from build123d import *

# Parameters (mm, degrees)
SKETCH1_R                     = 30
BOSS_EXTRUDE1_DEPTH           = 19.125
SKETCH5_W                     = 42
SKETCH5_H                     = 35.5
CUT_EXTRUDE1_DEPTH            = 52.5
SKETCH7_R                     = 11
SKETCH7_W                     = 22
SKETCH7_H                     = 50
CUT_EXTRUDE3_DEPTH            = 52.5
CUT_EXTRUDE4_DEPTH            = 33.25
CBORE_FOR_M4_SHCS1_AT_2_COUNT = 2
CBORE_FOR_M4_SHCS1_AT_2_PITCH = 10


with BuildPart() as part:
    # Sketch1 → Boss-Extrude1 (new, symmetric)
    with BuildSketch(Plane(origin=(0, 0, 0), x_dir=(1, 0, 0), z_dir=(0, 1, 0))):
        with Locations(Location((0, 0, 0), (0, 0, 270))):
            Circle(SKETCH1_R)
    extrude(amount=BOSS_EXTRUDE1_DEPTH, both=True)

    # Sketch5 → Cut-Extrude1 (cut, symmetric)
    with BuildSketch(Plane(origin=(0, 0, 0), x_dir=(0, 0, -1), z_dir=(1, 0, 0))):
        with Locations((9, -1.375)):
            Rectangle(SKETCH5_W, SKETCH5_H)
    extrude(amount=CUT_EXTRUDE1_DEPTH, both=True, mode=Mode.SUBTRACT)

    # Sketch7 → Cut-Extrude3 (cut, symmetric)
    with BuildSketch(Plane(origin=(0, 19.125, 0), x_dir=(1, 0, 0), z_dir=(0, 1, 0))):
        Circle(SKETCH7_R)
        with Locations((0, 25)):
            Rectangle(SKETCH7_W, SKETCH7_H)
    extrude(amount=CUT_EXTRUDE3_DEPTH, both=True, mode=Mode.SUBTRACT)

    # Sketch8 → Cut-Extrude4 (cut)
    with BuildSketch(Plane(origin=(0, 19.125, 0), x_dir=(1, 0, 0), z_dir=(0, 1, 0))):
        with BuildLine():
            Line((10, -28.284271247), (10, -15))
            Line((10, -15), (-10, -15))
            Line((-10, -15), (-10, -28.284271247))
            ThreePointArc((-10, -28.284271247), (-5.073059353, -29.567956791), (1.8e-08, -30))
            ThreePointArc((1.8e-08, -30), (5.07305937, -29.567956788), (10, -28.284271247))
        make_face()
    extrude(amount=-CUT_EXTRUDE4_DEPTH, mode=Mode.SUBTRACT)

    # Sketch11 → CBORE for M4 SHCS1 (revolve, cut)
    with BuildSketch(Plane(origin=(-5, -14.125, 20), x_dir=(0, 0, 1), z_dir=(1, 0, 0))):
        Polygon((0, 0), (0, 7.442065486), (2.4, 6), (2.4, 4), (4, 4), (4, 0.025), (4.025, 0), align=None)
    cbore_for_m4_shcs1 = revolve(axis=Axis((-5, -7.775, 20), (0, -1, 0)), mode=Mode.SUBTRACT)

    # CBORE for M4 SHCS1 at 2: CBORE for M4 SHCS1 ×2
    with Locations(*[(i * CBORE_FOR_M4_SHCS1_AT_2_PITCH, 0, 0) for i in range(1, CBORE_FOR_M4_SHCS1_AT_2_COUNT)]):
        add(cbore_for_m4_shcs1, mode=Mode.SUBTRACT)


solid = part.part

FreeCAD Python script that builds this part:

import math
import FreeCAD as App
import Part
import Sketcher
Q = App.Units.Quantity

doc = App.newDocument("Part")
params = doc.addObject("Spreadsheet::Sheet", "Params")
for row, (alias, value) in enumerate([
    ("sketch1_diameter", "60 mm"),
    ("pad1_length", "38.25 mm"),
    ("sketch2_height", "42 mm"),
    ("sketch2_width", "35.5 mm"),
    ("pocket1_length", "105 mm"),
    ("sketch3_radius", "11 mm"),
    ("sketch3_height", "50 mm"),
    ("pocket2_length", "105 mm"),
    ("sketch4_radius", "30 mm"),
    ("sketch4_width", "20 mm"),
    ("pocket3_length", "33.25 mm"),
    ("sketch5_width", "2 mm"),
    ("sketch5_height", "1.6 mm"),
    ("groove_angle", "360 deg"),
    ("linearpattern_pitch", "10 mm"),
], start=1):
    params.set(f"A{row}", alias)
    params.set(f"B{row}", "=" + value)
    params.setAlias(f"B{row}", alias)

body = doc.addObject("PartDesign::Body", "Body")

# Sketch on XZ plane
sketch1 = body.newObject("Sketcher::SketchObject", "Sketch")
sketch1.AttachmentSupport = (doc.getObject("XZ_Plane"), [""])
sketch1.MapMode = "FlatFace"
sketch1.addGeometry(Part.Circle(App.Vector(0, 0, 0), App.Vector(0, 0, 1), 30), False)
sketch1.addConstraint(Sketcher.Constraint("Coincident", 0, 3, -1, 1))
sketch1.addConstraint(Sketcher.Constraint("Diameter", 0, Q("60 mm")))
sketch1.setExpression("Constraints[1]", "Params.sketch1_diameter")
pad1 = body.newObject("PartDesign::Pad", "Pad")
pad1.Profile = sketch1
pad1.setExpression("Length", "Params.pad1_length")
pad1.Midplane = True

# Sketch on YZ plane
sketch2 = body.newObject("Sketcher::SketchObject", "Sketch001")
sketch2.AttachmentSupport = (doc.getObject("YZ_Plane"), [""])
sketch2.MapMode = "FlatFace"
sketch2.addGeometry(Part.LineSegment(App.Vector(16, 12, 0), App.Vector(-19, 12, 0)), False)
sketch2.addGeometry(Part.LineSegment(App.Vector(-19, 12, 0), App.Vector(-19, -30, 0)), False)
sketch2.addGeometry(Part.LineSegment(App.Vector(-19, -30, 0), App.Vector(16, -30, 0)), False)
sketch2.addGeometry(Part.LineSegment(App.Vector(16, -30, 0), App.Vector(16, 12, 0)), False)
sketch2.addConstraint(Sketcher.Constraint("Coincident", 0, 2, 1, 1))
sketch2.addConstraint(Sketcher.Constraint("Coincident", 1, 2, 2, 1))
sketch2.addConstraint(Sketcher.Constraint("Coincident", 2, 2, 3, 1))
sketch2.addConstraint(Sketcher.Constraint("Coincident", 3, 2, 0, 1))
sketch2.addConstraint(Sketcher.Constraint("Horizontal", 0))
sketch2.addConstraint(Sketcher.Constraint("Vertical", 1))
sketch2.addConstraint(Sketcher.Constraint("Horizontal", 2))
sketch2.addConstraint(Sketcher.Constraint("Vertical", 3))
sketch2.addConstraint(Sketcher.Constraint("DistanceY", 1, 2, 1, 1, Q("42 mm")))
sketch2.addConstraint(Sketcher.Constraint("DistanceX", 0, 2, 0, 1, Q("35.5 mm")))
sketch2.addConstraint(Sketcher.Constraint("DistanceY", -1, 1, 0, 2, Q("12 mm")))
sketch2.addConstraint(Sketcher.Constraint("DistanceX", 0, 2, -1, 1, Q("19.125 mm")))
sketch2.setExpression("Constraints[8]", "Params.sketch2_height")
sketch2.setExpression("Constraints[9]", "Params.sketch2_width")
pocket1 = body.newObject("PartDesign::Pocket", "Pocket")
pocket1.Profile = sketch2
pocket1.setExpression("Length", "Params.pocket1_length")
pocket1.Midplane = True

# Sketch on XZ plane
sketch3 = body.newObject("Sketcher::SketchObject", "Sketch002")
sketch3.AttachmentSupport = (doc.getObject("XZ_Plane"), [""])
sketch3.MapMode = "FlatFace"
sketch3.AttachmentOffset = App.Placement(App.Vector(0, 0, -19.125), App.Rotation())
sketch3.addGeometry(Part.ArcOfCircle(Part.Circle(App.Vector(0, 0, 0), App.Vector(0, 0, 1), 11), math.radians(0), math.radians(180)), False)
sketch3.addGeometry(Part.LineSegment(App.Vector(11, 0, 0), App.Vector(11, -50, 0)), False)
sketch3.addGeometry(Part.LineSegment(App.Vector(11, -50, 0), App.Vector(-11, -50, 0)), False)
sketch3.addGeometry(Part.LineSegment(App.Vector(-11, -50, 0), App.Vector(-11, 0, 0)), False)
sketch3.addConstraint(Sketcher.Constraint("Tangent", 0, 1, 1, 1))
sketch3.addConstraint(Sketcher.Constraint("Coincident", 1, 2, 2, 1))
sketch3.addConstraint(Sketcher.Constraint("Coincident", 2, 2, 3, 1))
sketch3.addConstraint(Sketcher.Constraint("Tangent", 3, 2, 0, 2))
sketch3.addConstraint(Sketcher.Constraint("Vertical", 1))
sketch3.addConstraint(Sketcher.Constraint("Horizontal", 2))
sketch3.addConstraint(Sketcher.Constraint("Vertical", 3))
sketch3.addConstraint(Sketcher.Constraint("Coincident", 0, 3, -1, 1))
sketch3.addConstraint(Sketcher.Constraint("Radius", 0, Q("11 mm")))
sketch3.addConstraint(Sketcher.Constraint("DistanceY", 1, 2, 1, 1, Q("50 mm")))
sketch3.setExpression("Constraints[8]", "Params.sketch3_radius")
sketch3.setExpression("Constraints[9]", "Params.sketch3_height")
pocket2 = body.newObject("PartDesign::Pocket", "Pocket001")
pocket2.Profile = sketch3
pocket2.setExpression("Length", "Params.pocket2_length")
pocket2.Midplane = True

# Sketch on XZ plane
sketch4 = body.newObject("Sketcher::SketchObject", "Sketch003")
sketch4.AttachmentSupport = (doc.getObject("XZ_Plane"), [""])
sketch4.MapMode = "FlatFace"
sketch4.AttachmentOffset = App.Placement(App.Vector(0, 0, -19.125), App.Rotation())
sketch4.addGeometry(Part.LineSegment(App.Vector(10, 28, 0), App.Vector(10, 15, 0)), False)
sketch4.addGeometry(Part.LineSegment(App.Vector(10, 15, 0), App.Vector(-10, 15, 0)), False)
sketch4.addGeometry(Part.LineSegment(App.Vector(-10, 15, 0), App.Vector(-10, 28, 0)), False)
sketch4.addGeometry(Part.ArcOfCircle(Part.Circle(App.Vector(0, 0, 0), App.Vector(0, 0, 1), 30), math.radians(90), math.radians(109.47)), False)
sketch4.addGeometry(Part.ArcOfCircle(Part.Circle(App.Vector(0, 0, 0), App.Vector(0, 0, 1), 30), math.radians(70.53), math.radians(90)), False)
sketch4.addConstraint(Sketcher.Constraint("Coincident", 0, 2, 1, 1))
sketch4.addConstraint(Sketcher.Constraint("Coincident", 1, 2, 2, 1))
sketch4.addConstraint(Sketcher.Constraint("Coincident", 2, 2, 3, 2))
sketch4.addConstraint(Sketcher.Constraint("Tangent", 3, 1, 4, 2))
sketch4.addConstraint(Sketcher.Constraint("Coincident", 4, 1, 0, 1))
sketch4.addConstraint(Sketcher.Constraint("Vertical", 0))
sketch4.addConstraint(Sketcher.Constraint("Horizontal", 1))
sketch4.addConstraint(Sketcher.Constraint("Vertical", 2))
sketch4.addConstraint(Sketcher.Constraint("Coincident", 3, 3, -1, 1))
sketch4.addConstraint(Sketcher.Constraint("Equal", 3, 4))
sketch4.addConstraint(Sketcher.Constraint("PointOnObject", 3, 1, -2))
sketch4.addConstraint(Sketcher.Constraint("Horizontal", 2, 2, 4, 1))
sketch4.addConstraint(Sketcher.Constraint("Radius", 3, Q("30 mm")))
sketch4.addConstraint(Sketcher.Constraint("DistanceX", 1, 2, 1, 1, Q("20 mm")))
sketch4.addConstraint(Sketcher.Constraint("DistanceY", -1, 1, 0, 2, Q("15 mm")))
sketch4.setExpression("Constraints[12]", "Params.sketch4_radius")
sketch4.setExpression("Constraints[13]", "Params.sketch4_width")
pocket3 = body.newObject("PartDesign::Pocket", "Pocket002")
pocket3.Profile = sketch4
pocket3.setExpression("Length", "Params.pocket3_length")
pocket3.Reversed = True

# Sketch on YZ plane
sketch5 = body.newObject("Sketcher::SketchObject", "Sketch004")
sketch5.AttachmentSupport = (doc.getObject("YZ_Plane"), [""])
sketch5.MapMode = "FlatFace"
sketch5.AttachmentOffset = App.Placement(App.Vector(0, 0, -5), App.Rotation())
sketch5.addGeometry(Part.LineSegment(App.Vector(-21.567, 20, 0), App.Vector(-14.125, 20, 0)), False)
sketch5.addGeometry(Part.LineSegment(App.Vector(-14.125, 20, 0), App.Vector(-14.125, 24.025, 0)), False)
sketch5.addGeometry(Part.LineSegment(App.Vector(-14.125, 24.025, 0), App.Vector(-14.15, 24, 0)), False)
sketch5.addGeometry(Part.LineSegment(App.Vector(-14.15, 24, 0), App.Vector(-18.125, 24, 0)), False)
sketch5.addGeometry(Part.LineSegment(App.Vector(-18.125, 24, 0), App.Vector(-18.125, 22.4, 0)), False)
sketch5.addGeometry(Part.LineSegment(App.Vector(-18.125, 22.4, 0), App.Vector(-20.125, 22.4, 0)), False)
sketch5.addGeometry(Part.LineSegment(App.Vector(-20.125, 22.4, 0), App.Vector(-21.567, 20, 0)), False)
sketch5.addGeometry(Part.LineSegment(App.Vector(-14.125, 20, 0), App.Vector(-21.567, 20, 0)), True)  # axis
sketch5.addConstraint(Sketcher.Constraint("Coincident", 0, 2, 1, 1))
sketch5.addConstraint(Sketcher.Constraint("Coincident", 1, 2, 2, 1))
sketch5.addConstraint(Sketcher.Constraint("Coincident", 2, 2, 3, 1))
sketch5.addConstraint(Sketcher.Constraint("Coincident", 3, 2, 4, 1))
sketch5.addConstraint(Sketcher.Constraint("Coincident", 4, 2, 5, 1))
sketch5.addConstraint(Sketcher.Constraint("Coincident", 5, 2, 6, 1))
sketch5.addConstraint(Sketcher.Constraint("Coincident", 6, 2, 0, 1))
sketch5.addConstraint(Sketcher.Constraint("Horizontal", 0))
sketch5.addConstraint(Sketcher.Constraint("Vertical", 1))
sketch5.addConstraint(Sketcher.Constraint("Horizontal", 3))
sketch5.addConstraint(Sketcher.Constraint("Vertical", 4))
sketch5.addConstraint(Sketcher.Constraint("Horizontal", 5))
sketch5.addConstraint(Sketcher.Constraint("Horizontal", 7))
sketch5.addConstraint(Sketcher.Constraint("Coincident", 7, 1, 0, 2))
sketch5.addConstraint(Sketcher.Constraint("Equal", 0, 7))
sketch5.addConstraint(Sketcher.Constraint("DistanceX", 5, 2, 5, 1, Q("2 mm")))
sketch5.addConstraint(Sketcher.Constraint("Angle", 2, Q("-135 deg")))
sketch5.addConstraint(Sketcher.Constraint("Angle", 6, Q("-121 deg")))
sketch5.addConstraint(Sketcher.Constraint("DistanceY", 4, 2, 4, 1, Q("1.6 mm")))
sketch5.addConstraint(Sketcher.Constraint("DistanceY", -1, 1, 0, 2, Q("20 mm")))
sketch5.addConstraint(Sketcher.Constraint("DistanceY", -1, 1, 2, 2, Q("24 mm")))
sketch5.addConstraint(Sketcher.Constraint("DistanceX", 3, 2, 1, 2, Q("4 mm")))
sketch5.addConstraint(Sketcher.Constraint("DistanceX", 3, 2, 3, 1, Q("3.975 mm")))
sketch5.addConstraint(Sketcher.Constraint("DistanceX", 2, 2, -1, 1, Q("14.15 mm")))
sketch5.setExpression("Constraints[15]", "Params.sketch5_width")
sketch5.setExpression("Constraints[18]", "Params.sketch5_height")
groove = body.newObject("PartDesign::Groove", "Groove")
groove.Profile = sketch5
groove.ReferenceAxis = (sketch5, ["Axis0"])
groove.setExpression("Angle", "Params.groove_angle")
doc.recompute()

linearpattern = body.newObject("PartDesign::LinearPattern", "LinearPattern")
linearpattern.Originals = [groove]
linearpattern.Direction = (doc.getObject("X_Axis"), [""])
linearpattern.Mode = "offset"
linearpattern.setExpression("Offset", "Params.linearpattern_pitch")
linearpattern.Occurrences = 2
body.Tip = linearpattern

doc.recompute()
